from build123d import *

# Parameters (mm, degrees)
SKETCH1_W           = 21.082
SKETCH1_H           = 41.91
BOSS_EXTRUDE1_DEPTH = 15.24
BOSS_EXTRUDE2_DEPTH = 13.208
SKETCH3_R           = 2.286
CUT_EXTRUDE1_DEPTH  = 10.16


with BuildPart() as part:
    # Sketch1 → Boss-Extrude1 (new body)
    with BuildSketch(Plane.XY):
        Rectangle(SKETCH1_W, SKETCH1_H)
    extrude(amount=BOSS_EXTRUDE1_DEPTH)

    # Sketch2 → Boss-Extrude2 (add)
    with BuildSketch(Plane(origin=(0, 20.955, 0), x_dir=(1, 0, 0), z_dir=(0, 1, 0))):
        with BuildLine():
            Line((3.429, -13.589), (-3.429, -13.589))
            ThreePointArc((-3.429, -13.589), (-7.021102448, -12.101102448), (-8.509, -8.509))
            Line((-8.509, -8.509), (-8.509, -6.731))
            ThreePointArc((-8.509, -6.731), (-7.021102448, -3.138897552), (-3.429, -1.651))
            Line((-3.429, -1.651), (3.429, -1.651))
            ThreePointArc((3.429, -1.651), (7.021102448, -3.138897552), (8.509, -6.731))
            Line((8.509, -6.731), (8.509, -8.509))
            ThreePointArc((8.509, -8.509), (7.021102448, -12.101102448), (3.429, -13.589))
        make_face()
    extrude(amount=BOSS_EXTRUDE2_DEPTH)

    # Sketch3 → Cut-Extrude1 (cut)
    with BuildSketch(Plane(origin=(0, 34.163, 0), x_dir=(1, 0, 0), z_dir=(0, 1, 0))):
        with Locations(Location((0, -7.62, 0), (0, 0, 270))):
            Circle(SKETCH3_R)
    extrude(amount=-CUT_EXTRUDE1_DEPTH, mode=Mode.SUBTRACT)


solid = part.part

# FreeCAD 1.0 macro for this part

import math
import FreeCAD as App
import Part
import Sketcher
from FreeCAD import Vector
Q = App.Units.Quantity


def add_polygon(sketch, points):
    """Adds a closed chain of lines whose ends are joined by coincident constraints."""
    first, n = sketch.GeometryCount, len(points)
    for a, b in zip(points, points[1:] + points[:1]):
        sketch.addGeometry(Part.LineSegment(App.Vector(*a, 0), App.Vector(*b, 0)), False)
    for i in range(n):
        sketch.addConstraint(Sketcher.Constraint("Coincident", first + i, 2, first + (i + 1) % n, 1))

doc = App.newDocument("Part")
params = doc.addObject("Spreadsheet::Sheet", "Params")
for row, (alias, value) in enumerate([
    ("sketch1_width", "0.83 in"),
    ("sketch1_height", "1.65 in"),
    ("pad1_length", "0.6 in"),
    ("sketch2_radius", "0.2 in"),
    ("sketch2_width", "0.27 in"),
    ("sketch2_height", "0.07 in"),
    ("pad2_length", "0.52 in"),
    ("sketch3_diameter", "0.18 in"),
    ("pocket1_length", "0.4 in"),
], start=1):
    params.set(f"A{row}", alias)
    params.set(f"B{row}", "=" + value)
    params.setAlias(f"B{row}", alias)

body = doc.addObject("PartDesign::Body", "Body")

sketch1 = doc.addObject("Sketcher::SketchObject", "Sketch")
body.addObject(sketch1)
sketch1.AttachmentSupport = (doc.XY_Plane, [""])
sketch1.MapMode = "FlatFace"
add_polygon(sketch1, [(-11, 21), (-11, -21), (11, -21), (11, 21)])
sketch1.addConstraint([
    Sketcher.Constraint("Vertical", 0),
    Sketcher.Constraint("Horizontal", 1),
    Sketcher.Constraint("Vertical", 2),
    Sketcher.Constraint("Horizontal", 3),
    Sketcher.Constraint("Symmetric", 0, 2, 2, 2, -1, 1),
    Sketcher.Constraint("DistanceX", 1, 1, 1, 2, Q("0.83 in")),
    Sketcher.Constraint("DistanceY", 0, 2, 0, 1, Q("1.65 in")),
])
sketch1.setExpression("Constraints[9]", "Params.sketch1_width")
sketch1.setExpression("Constraints[10]", "Params.sketch1_height")
pad1 = doc.addObject("PartDesign::Pad", "Pad")
body.addObject(pad1)
pad1.Profile = sketch1
pad1.setExpression("Length", "Params.pad1_length")

sketch2 = doc.addObject("Sketcher::SketchObject", "Sketch001")
body.addObject(sketch2)
sketch2.AttachmentSupport = (doc.XZ_Plane, [""])
sketch2.MapMode = "FlatFace"
sketch2.AttachmentOffset = App.Placement(Vector(0, 0, -0.825 * 25.4), App.Rotation())
sketch2.addGeometry([
    Part.LineSegment(Vector(-3.4, 13.6, 0), Vector(3.4, 13.6, 0)),
    Part.ArcOfCircle(Part.Circle(Vector(3.4, 8.5, 0), Vector(0, 0, 1), 5.1), math.radians(0), math.radians(90)),
    Part.LineSegment(Vector(8.5, 8.5, 0), Vector(8.5, 6.7, 0)),
    Part.ArcOfCircle(Part.Circle(Vector(3.4, 6.7, 0), Vector(0, 0, 1), 5.1), math.radians(-90), math.radians(0)),
    Part.LineSegment(Vector(3.4, 1.7, 0), Vector(-3.4, 1.7, 0)),
    Part.ArcOfCircle(Part.Circle(Vector(-3.4, 6.7, 0), Vector(0, 0, 1), 5.1), math.radians(-180), math.radians(-90)),
    Part.LineSegment(Vector(-8.5, 6.7, 0), Vector(-8.5, 8.5, 0)),
    Part.ArcOfCircle(Part.Circle(Vector(-3.4, 8.5, 0), Vector(0, 0, 1), 5.1), math.radians(90), math.radians(180)),
], False)
sketch2.addConstraint([
    Sketcher.Constraint("Tangent", 0, 2, 1, 2),
    Sketcher.Constraint("Tangent", 1, 1, 2, 1),
    Sketcher.Constraint("Tangent", 2, 2, 3, 2),
    Sketcher.Constraint("Tangent", 3, 1, 4, 1),
    Sketcher.Constraint("Tangent", 4, 2, 5, 2),
    Sketcher.Constraint("Tangent", 5, 1, 6, 1),
    Sketcher.Constraint("Tangent", 6, 2, 7, 2),
    Sketcher.Constraint("Tangent", 7, 1, 0, 1),
    Sketcher.Constraint("Horizontal", 0),
    Sketcher.Constraint("Vertical", 2),
    Sketcher.Constraint("Horizontal", 4),
    Sketcher.Constraint("Vertical", 6),
    Sketcher.Constraint("Equal", 1, 3),
    Sketcher.Constraint("Equal", 3, 5),
    Sketcher.Constraint("Equal", 5, 7),
    Sketcher.Constraint("Radius", 1, Q("0.2 in")),
    Sketcher.Constraint("DistanceX", 0, 1, 0, 2, Q("0.27 in")),
    Sketcher.Constraint("DistanceY", 2, 2, 2, 1, Q("0.07 in")),
    Sketcher.Constraint("DistanceX", -1, 1, 1, 3, Q("0.135 in")),
    Sketcher.Constraint("DistanceY", -1, 1, 1, 3, Q("0.335 in")),
])
sketch2.setExpression("Constraints[15]", "Params.sketch2_radius")
sketch2.setExpression("Constraints[16]", "Params.sketch2_width")
sketch2.setExpression("Constraints[17]", "Params.sketch2_height")
pad2 = doc.addObject("PartDesign::Pad", "Pad001")
body.addObject(pad2)
pad2.Profile = sketch2
pad2.setExpression("Length", "Params.pad2_length")
pad2.Reversed = True

sketch3 = doc.addObject("Sketcher::SketchObject", "Sketch002")
body.addObject(sketch3)
sketch3.AttachmentSupport = (doc.XZ_Plane, [""])
sketch3.MapMode = "FlatFace"
sketch3.AttachmentOffset = App.Placement(Vector(0, 0, -1.345 * 25.4), App.Rotation())
sketch3.addGeometry(Part.Circle(Vector(0, 7.6, 0), Vector(0, 0, 1), 2.3), False)
sketch3.addConstraint([
    Sketcher.Constraint("PointOnObject", 0, 3, -2),
    Sketcher.Constraint("Diameter", 0, Q("0.18 in")),
    Sketcher.Constraint("DistanceY", -1, 1, 0, 3, Q("0.3 in")),
])
sketch3.setExpression("Constraints[1]", "Params.sketch3_diameter")
pocket1 = doc.addObject("PartDesign::Pocket", "Pocket")
body.addObject(pocket1)
pocket1.Profile = sketch3
pocket1.setExpression("Length", "Params.pocket1_length")
pocket1.Reversed = True

doc.recompute()
